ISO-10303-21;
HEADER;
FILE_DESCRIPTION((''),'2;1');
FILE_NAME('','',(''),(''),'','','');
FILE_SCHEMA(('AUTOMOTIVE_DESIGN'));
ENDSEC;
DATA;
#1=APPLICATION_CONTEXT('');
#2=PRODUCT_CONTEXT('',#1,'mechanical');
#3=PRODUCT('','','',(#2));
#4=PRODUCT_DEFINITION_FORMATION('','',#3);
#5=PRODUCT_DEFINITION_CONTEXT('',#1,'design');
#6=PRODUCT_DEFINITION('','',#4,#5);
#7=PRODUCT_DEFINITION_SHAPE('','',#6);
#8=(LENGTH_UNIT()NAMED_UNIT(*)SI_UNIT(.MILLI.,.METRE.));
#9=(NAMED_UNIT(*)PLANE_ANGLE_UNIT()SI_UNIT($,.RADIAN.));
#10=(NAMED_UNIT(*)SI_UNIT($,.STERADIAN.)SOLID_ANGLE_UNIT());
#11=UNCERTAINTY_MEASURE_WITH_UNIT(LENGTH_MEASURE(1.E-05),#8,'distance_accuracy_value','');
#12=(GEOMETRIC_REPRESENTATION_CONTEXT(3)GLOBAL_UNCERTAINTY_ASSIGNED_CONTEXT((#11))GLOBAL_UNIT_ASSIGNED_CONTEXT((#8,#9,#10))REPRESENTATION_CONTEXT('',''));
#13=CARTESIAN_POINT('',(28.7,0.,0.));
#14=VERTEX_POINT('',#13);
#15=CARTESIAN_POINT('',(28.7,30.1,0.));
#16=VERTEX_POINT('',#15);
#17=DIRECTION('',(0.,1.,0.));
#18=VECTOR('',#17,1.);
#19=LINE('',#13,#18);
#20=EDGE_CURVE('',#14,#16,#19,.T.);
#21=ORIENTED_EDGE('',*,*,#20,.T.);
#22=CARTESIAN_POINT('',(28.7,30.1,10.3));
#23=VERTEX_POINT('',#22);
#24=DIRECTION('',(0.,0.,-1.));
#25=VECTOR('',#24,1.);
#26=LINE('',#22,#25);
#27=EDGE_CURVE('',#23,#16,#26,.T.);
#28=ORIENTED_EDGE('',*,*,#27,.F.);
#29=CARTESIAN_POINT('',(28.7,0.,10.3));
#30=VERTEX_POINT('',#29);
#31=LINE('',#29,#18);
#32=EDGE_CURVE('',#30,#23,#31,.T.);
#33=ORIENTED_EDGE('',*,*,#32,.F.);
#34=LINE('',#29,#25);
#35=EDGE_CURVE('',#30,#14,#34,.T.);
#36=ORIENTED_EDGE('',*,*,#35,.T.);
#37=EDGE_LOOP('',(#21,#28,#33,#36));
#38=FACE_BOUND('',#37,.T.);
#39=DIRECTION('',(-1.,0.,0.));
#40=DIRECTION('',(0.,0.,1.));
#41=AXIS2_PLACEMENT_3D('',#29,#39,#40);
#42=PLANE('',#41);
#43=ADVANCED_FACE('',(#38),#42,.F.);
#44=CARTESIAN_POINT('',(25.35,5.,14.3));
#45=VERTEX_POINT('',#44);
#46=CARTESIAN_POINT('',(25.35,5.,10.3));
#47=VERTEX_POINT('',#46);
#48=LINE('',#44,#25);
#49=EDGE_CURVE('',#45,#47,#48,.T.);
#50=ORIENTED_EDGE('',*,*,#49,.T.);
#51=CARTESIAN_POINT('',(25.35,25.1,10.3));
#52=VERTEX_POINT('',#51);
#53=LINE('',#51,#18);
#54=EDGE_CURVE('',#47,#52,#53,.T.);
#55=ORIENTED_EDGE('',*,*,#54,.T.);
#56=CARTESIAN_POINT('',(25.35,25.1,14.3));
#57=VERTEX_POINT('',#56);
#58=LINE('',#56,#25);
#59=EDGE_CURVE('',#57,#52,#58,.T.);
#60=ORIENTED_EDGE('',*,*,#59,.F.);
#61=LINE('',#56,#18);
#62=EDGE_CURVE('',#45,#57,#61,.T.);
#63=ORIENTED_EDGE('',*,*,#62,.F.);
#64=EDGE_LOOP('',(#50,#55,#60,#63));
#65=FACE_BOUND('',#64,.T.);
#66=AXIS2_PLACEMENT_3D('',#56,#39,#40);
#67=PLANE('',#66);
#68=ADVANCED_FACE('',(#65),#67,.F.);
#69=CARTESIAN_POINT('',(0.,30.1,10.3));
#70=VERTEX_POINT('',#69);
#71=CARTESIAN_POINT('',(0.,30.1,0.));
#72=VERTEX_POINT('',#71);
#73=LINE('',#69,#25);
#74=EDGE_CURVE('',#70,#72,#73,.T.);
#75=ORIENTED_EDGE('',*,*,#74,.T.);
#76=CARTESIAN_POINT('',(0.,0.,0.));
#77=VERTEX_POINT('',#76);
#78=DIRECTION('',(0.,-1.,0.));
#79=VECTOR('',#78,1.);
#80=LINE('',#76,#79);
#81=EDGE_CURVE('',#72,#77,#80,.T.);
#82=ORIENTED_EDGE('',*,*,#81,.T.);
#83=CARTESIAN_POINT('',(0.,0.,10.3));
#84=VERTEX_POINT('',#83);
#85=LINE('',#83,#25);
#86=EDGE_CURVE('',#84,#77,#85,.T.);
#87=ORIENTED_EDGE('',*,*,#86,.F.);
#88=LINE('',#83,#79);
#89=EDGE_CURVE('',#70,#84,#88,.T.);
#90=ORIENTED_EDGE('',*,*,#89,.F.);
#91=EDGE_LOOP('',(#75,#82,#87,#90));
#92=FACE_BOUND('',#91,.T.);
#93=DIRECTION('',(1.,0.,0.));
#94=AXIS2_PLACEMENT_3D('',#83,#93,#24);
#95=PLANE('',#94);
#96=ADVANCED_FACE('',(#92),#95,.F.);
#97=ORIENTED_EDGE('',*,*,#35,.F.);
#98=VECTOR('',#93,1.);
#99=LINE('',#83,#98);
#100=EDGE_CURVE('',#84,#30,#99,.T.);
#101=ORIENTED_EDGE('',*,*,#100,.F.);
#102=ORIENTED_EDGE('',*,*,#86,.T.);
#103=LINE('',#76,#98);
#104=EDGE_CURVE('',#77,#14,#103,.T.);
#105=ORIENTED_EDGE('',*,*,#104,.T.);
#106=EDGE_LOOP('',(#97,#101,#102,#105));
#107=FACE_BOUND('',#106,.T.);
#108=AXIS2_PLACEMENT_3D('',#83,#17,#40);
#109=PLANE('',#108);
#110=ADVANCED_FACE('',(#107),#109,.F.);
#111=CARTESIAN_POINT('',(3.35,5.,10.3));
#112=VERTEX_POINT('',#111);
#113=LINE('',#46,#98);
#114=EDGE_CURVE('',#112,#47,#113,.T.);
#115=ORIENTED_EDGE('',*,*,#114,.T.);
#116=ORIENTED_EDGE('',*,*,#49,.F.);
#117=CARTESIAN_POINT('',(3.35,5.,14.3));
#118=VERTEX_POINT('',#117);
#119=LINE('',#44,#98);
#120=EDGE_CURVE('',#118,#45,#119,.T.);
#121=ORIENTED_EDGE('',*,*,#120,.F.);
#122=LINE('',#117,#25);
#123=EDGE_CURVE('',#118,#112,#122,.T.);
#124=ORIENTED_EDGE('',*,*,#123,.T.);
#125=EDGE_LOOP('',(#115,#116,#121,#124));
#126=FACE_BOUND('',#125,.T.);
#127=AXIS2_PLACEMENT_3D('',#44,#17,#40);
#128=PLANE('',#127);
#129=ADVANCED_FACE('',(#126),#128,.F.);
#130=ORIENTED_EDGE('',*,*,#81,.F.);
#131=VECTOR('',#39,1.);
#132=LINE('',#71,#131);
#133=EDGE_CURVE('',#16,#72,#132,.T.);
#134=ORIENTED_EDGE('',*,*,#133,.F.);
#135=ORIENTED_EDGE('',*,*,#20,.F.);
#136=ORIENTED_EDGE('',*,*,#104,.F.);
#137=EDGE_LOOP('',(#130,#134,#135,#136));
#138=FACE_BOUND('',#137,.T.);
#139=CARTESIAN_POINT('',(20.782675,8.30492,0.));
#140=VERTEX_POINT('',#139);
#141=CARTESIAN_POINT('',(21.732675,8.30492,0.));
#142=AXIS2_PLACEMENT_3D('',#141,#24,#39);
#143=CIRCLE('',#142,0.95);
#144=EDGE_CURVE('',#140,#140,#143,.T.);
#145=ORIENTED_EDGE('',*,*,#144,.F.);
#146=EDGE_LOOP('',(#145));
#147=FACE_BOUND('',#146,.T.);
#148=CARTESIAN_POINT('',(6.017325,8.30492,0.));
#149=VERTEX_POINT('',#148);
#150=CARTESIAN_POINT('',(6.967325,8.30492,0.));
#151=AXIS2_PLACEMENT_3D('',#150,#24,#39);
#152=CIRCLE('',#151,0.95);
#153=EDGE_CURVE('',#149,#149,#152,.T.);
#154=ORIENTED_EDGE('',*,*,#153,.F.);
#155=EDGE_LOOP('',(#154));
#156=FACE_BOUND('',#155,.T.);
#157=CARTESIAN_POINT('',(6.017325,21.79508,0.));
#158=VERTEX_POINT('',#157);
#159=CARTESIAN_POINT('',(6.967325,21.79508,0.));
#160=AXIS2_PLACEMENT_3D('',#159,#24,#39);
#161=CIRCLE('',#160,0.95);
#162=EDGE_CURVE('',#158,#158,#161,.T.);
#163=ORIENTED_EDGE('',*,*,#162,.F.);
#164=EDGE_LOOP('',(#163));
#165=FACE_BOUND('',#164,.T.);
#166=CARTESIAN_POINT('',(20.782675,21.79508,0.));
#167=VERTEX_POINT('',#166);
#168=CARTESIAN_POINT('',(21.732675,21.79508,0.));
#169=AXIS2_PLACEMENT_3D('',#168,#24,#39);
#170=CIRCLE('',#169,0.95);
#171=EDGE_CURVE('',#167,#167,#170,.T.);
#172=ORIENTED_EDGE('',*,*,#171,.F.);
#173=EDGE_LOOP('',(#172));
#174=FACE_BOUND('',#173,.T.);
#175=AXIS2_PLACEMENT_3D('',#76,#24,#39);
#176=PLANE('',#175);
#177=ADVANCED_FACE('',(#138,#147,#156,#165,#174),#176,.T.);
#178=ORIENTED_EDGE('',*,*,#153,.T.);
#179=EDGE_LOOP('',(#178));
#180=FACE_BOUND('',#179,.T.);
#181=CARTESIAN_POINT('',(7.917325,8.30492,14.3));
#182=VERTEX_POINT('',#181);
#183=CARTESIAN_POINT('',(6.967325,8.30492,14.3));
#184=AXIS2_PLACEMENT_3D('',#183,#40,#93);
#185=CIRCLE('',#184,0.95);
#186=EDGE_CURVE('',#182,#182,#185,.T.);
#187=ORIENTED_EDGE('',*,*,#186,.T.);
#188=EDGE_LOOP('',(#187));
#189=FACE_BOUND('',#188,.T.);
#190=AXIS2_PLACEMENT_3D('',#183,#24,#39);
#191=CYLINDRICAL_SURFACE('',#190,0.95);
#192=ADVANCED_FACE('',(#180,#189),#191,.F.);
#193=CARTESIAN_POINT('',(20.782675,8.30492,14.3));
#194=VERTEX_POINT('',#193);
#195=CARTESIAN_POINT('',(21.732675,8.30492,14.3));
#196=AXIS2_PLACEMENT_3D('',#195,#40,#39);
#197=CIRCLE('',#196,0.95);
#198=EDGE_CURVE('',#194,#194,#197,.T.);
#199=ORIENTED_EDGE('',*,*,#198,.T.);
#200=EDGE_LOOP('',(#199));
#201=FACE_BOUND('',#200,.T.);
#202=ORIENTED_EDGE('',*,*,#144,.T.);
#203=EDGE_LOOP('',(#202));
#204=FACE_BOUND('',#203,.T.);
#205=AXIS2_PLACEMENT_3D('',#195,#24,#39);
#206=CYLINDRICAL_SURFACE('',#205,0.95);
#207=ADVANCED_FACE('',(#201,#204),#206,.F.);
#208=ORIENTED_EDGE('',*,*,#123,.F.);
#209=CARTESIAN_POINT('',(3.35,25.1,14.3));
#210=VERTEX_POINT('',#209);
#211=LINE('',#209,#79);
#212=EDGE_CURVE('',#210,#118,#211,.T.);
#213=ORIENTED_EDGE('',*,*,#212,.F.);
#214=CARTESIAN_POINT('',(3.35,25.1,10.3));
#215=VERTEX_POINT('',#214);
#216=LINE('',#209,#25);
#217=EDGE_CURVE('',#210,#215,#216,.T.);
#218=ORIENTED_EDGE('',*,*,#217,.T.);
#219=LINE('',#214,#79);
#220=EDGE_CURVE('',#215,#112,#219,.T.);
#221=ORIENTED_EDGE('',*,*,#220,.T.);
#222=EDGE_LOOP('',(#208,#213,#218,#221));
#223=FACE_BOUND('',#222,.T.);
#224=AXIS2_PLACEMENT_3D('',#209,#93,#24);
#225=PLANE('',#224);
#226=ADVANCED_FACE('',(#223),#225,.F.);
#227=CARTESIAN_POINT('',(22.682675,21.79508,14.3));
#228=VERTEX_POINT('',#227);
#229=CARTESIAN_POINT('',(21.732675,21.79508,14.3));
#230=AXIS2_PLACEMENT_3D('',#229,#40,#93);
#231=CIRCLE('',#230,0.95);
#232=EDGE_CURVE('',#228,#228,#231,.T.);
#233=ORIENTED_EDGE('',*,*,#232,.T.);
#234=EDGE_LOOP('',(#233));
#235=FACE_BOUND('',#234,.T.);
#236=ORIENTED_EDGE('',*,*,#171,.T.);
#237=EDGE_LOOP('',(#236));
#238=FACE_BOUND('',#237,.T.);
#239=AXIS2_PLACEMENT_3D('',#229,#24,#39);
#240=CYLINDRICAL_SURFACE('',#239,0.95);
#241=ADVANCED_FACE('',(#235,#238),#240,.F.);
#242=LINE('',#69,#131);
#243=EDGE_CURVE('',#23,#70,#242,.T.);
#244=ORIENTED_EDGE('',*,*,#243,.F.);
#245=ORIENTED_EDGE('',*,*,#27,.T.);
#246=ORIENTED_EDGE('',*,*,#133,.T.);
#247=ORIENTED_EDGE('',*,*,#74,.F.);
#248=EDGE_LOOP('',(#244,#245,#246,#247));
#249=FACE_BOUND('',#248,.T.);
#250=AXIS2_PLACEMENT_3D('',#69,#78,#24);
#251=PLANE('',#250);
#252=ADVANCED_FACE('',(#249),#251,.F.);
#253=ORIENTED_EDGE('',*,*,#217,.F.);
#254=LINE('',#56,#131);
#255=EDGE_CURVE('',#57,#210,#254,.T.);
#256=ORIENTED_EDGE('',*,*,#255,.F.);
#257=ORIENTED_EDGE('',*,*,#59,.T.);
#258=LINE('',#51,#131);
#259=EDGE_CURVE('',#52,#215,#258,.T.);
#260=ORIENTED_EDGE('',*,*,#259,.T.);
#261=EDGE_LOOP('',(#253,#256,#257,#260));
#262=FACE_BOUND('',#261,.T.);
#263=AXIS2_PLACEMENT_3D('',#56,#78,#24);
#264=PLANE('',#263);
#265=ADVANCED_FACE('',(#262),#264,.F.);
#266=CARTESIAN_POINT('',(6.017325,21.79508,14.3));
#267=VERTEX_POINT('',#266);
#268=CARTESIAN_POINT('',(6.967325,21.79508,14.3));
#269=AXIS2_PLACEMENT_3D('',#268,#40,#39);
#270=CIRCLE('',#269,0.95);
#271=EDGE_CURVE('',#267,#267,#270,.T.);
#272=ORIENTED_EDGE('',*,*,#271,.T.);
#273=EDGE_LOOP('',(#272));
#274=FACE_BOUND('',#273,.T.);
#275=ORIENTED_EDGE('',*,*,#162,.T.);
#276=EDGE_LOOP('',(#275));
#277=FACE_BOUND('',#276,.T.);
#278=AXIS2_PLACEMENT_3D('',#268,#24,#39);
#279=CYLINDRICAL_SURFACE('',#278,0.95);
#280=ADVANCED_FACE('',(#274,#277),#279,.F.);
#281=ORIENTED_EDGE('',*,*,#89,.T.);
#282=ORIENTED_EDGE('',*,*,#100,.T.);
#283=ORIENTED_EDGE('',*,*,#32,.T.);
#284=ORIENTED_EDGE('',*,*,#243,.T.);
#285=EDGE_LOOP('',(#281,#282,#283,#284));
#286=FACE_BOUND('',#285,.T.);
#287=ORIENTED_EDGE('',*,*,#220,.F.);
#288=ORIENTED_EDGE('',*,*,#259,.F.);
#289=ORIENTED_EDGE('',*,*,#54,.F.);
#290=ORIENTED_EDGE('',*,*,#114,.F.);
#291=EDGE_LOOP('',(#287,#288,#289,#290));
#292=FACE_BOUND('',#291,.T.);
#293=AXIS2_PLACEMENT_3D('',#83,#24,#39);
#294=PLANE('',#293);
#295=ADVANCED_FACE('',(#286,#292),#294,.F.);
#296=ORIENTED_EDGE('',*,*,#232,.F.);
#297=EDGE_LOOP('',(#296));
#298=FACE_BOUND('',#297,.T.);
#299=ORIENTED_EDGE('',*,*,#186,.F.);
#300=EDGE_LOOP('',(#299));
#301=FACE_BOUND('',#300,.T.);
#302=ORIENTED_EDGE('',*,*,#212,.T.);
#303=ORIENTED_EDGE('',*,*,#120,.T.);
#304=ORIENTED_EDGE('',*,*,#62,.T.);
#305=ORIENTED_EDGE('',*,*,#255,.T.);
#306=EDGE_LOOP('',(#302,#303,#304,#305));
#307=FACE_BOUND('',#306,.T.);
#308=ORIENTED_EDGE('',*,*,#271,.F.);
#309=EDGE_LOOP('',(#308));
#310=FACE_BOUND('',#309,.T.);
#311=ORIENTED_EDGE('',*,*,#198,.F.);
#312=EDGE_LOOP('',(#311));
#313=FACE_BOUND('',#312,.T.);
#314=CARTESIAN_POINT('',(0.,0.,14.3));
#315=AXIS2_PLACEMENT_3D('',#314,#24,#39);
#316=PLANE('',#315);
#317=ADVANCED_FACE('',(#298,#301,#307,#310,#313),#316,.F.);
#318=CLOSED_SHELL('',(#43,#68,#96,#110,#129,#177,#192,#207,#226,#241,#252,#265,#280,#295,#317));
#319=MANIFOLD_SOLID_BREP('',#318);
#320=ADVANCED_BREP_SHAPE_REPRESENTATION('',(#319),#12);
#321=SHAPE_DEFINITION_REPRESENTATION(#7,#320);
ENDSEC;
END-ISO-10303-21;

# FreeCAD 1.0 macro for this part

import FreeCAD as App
import Part
import Sketcher


def add_polygon(sketch, points):
    """Adds a closed chain of lines whose ends are joined by coincident constraints."""
    first, n = sketch.GeometryCount, len(points)
    for a, b in zip(points, points[1:] + points[:1]):
        sketch.addGeometry(Part.LineSegment(App.Vector(*a, 0), App.Vector(*b, 0)), False)
    for i in range(n):
        sketch.addConstraint(Sketcher.Constraint("Coincident", first + i, 2, first + (i + 1) % n, 1))

doc = App.newDocument("Part")
body = doc.addObject("PartDesign::Body", "Body")

sketch1 = body.newObject("Sketcher::SketchObject", "Sketch")
sketch1.AttachmentSupport = (doc.getObject("XY_Plane"), [""])
sketch1.MapMode = "FlatFace"
add_polygon(sketch1, [(0, 30.1), (0, 0), (28.7, 0), (28.7, 30.1)])
sketch1.addConstraint(Sketcher.Constraint("Vertical", 0))
sketch1.addConstraint(Sketcher.Constraint("Horizontal", 1))
sketch1.addConstraint(Sketcher.Constraint("Vertical", 2))
sketch1.addConstraint(Sketcher.Constraint("Horizontal", 3))
sketch1.addConstraint(Sketcher.Constraint("Coincident", 0, 2, -1, 1))
sketch1.addConstraint(Sketcher.Constraint("DistanceX", 1, 1, 1, 2, 28.7))
sketch1.addConstraint(Sketcher.Constraint("DistanceY", 0, 2, 0, 1, 30.1))
pad1 = body.newObject("PartDesign::Pad", "Pad")
pad1.Profile = sketch1
pad1.Length = 10.3

sketch2 = body.newObject("Sketcher::SketchObject", "Sketch001")
sketch2.AttachmentSupport = (doc.getObject("XY_Plane"), [""])
sketch2.MapMode = "FlatFace"
sketch2.AttachmentOffset = App.Placement(App.Vector(0, 0, 10.3), App.Rotation())
add_polygon(sketch2, [(3.35, 25.1), (3.35, 5), (25.35, 5), (25.35, 25.1)])
sketch2.addGeometry(Part.Circle(App.Vector(6.967325, 8.30492, 0), App.Vector(0, 0, 1), 0.95), False)
sketch2.addGeometry(Part.Circle(App.Vector(21.732675, 8.30492, 0), App.Vector(0, 0, 1), 0.95), False)
sketch2.addGeometry(Part.Circle(App.Vector(6.967325, 21.79508, 0), App.Vector(0, 0, 1), 0.95), False)
sketch2.addGeometry(Part.Circle(App.Vector(21.732675, 21.79508, 0), App.Vector(0, 0, 1), 0.95), False)
sketch2.addConstraint(Sketcher.Constraint("Vertical", 0))
sketch2.addConstraint(Sketcher.Constraint("Horizontal", 1))
sketch2.addConstraint(Sketcher.Constraint("Vertical", 2))
sketch2.addConstraint(Sketcher.Constraint("Horizontal", 3))
sketch2.addConstraint(Sketcher.Constraint("Equal", 4, 5))
sketch2.addConstraint(Sketcher.Constraint("Equal", 5, 6))
sketch2.addConstraint(Sketcher.Constraint("Equal", 6, 7))
sketch2.addConstraint(Sketcher.Constraint("Horizontal", 4, 3, 5, 3))
sketch2.addConstraint(Sketcher.Constraint("Horizontal", 6, 3, 7, 3))
sketch2.addConstraint(Sketcher.Constraint("Vertical", 4, 3, 6, 3))
sketch2.addConstraint(Sketcher.Constraint("Vertical", 5, 3, 7, 3))
sketch2.addConstraint(Sketcher.Constraint("Diameter", 4, 1.9))
sketch2.addConstraint(Sketcher.Constraint("DistanceX", 1, 1, 1, 2, 22.0))
sketch2.addConstraint(Sketcher.Constraint("DistanceY", 0, 2, 0, 1, 20.1))
sketch2.addConstraint(Sketcher.Constraint("DistanceY", -1, 1, 0, 2, 5.0))
sketch2.addConstraint(Sketcher.Constraint("DistanceX", -1, 1, 0, 2, 3.35))
sketch2.addConstraint(Sketcher.Constraint("DistanceY", -1, 1, 4, 3, 8.30492))
sketch2.addConstraint(Sketcher.Constraint("DistanceY", -1, 1, 6, 3, 21.79508))
sketch2.addConstraint(Sketcher.Constraint("DistanceX", 4, 3, 5, 3, 14.76535))
sketch2.addConstraint(Sketcher.Constraint("DistanceX", -1, 1, 4, 3, 6.967325))
pad2 = body.newObject("PartDesign::Pad", "Pad001")
pad2.Profile = sketch2
pad2.Length = 4

sketch3 = body.newObject("Sketcher::SketchObject", "Sketch002")
sketch3.AttachmentSupport = (doc.getObject("XY_Plane"), [""])
sketch3.MapMode = "FlatFace"
sketch3.addGeometry(Part.Circle(App.Vector(21.732675, 21.79508, 0), App.Vector(0, 0, 1), 0.95), False)
sketch3.addGeometry(Part.Circle(App.Vector(21.732675, 8.30492, 0), App.Vector(0, 0, 1), 0.95), False)
sketch3.addGeometry(Part.Circle(App.Vector(6.967325, 8.30492, 0), App.Vector(0, 0, 1), 0.95), False)
sketch3.addGeometry(Part.Circle(App.Vector(6.967325, 21.79508, 0), App.Vector(0, 0, 1), 0.95), False)
sketch3.addConstraint(Sketcher.Constraint("Equal", 0, 1))
sketch3.addConstraint(Sketcher.Constraint("Equal", 1, 2))
sketch3.addConstraint(Sketcher.Constraint("Equal", 2, 3))
sketch3.addConstraint(Sketcher.Constraint("Horizontal", 1, 3, 2, 3))
sketch3.addConstraint(Sketcher.Constraint("Horizontal", 0, 3, 3, 3))
sketch3.addConstraint(Sketcher.Constraint("Vertical", 0, 3, 1, 3))
sketch3.addConstraint(Sketcher.Constraint("Vertical", 2, 3, 3, 3))
sketch3.addConstraint(Sketcher.Constraint("Diameter", 0, 1.9))
sketch3.addConstraint(Sketcher.Constraint("DistanceY", -1, 1, 0, 3, 21.79508))
sketch3.addConstraint(Sketcher.Constraint("DistanceY", -1, 1, 1, 3, 8.30492))
sketch3.addConstraint(Sketcher.Constraint("DistanceX", 2, 3, 1, 3, 14.76535))
sketch3.addConstraint(Sketcher.Constraint("DistanceX", -1, 1, 0, 3, 21.732675))
pocket1 = body.newObject("PartDesign::Pocket", "Pocket")
pocket1.Profile = sketch3
pocket1.Type = "ThroughAll"
pocket1.Reversed = True

doc.recompute()
